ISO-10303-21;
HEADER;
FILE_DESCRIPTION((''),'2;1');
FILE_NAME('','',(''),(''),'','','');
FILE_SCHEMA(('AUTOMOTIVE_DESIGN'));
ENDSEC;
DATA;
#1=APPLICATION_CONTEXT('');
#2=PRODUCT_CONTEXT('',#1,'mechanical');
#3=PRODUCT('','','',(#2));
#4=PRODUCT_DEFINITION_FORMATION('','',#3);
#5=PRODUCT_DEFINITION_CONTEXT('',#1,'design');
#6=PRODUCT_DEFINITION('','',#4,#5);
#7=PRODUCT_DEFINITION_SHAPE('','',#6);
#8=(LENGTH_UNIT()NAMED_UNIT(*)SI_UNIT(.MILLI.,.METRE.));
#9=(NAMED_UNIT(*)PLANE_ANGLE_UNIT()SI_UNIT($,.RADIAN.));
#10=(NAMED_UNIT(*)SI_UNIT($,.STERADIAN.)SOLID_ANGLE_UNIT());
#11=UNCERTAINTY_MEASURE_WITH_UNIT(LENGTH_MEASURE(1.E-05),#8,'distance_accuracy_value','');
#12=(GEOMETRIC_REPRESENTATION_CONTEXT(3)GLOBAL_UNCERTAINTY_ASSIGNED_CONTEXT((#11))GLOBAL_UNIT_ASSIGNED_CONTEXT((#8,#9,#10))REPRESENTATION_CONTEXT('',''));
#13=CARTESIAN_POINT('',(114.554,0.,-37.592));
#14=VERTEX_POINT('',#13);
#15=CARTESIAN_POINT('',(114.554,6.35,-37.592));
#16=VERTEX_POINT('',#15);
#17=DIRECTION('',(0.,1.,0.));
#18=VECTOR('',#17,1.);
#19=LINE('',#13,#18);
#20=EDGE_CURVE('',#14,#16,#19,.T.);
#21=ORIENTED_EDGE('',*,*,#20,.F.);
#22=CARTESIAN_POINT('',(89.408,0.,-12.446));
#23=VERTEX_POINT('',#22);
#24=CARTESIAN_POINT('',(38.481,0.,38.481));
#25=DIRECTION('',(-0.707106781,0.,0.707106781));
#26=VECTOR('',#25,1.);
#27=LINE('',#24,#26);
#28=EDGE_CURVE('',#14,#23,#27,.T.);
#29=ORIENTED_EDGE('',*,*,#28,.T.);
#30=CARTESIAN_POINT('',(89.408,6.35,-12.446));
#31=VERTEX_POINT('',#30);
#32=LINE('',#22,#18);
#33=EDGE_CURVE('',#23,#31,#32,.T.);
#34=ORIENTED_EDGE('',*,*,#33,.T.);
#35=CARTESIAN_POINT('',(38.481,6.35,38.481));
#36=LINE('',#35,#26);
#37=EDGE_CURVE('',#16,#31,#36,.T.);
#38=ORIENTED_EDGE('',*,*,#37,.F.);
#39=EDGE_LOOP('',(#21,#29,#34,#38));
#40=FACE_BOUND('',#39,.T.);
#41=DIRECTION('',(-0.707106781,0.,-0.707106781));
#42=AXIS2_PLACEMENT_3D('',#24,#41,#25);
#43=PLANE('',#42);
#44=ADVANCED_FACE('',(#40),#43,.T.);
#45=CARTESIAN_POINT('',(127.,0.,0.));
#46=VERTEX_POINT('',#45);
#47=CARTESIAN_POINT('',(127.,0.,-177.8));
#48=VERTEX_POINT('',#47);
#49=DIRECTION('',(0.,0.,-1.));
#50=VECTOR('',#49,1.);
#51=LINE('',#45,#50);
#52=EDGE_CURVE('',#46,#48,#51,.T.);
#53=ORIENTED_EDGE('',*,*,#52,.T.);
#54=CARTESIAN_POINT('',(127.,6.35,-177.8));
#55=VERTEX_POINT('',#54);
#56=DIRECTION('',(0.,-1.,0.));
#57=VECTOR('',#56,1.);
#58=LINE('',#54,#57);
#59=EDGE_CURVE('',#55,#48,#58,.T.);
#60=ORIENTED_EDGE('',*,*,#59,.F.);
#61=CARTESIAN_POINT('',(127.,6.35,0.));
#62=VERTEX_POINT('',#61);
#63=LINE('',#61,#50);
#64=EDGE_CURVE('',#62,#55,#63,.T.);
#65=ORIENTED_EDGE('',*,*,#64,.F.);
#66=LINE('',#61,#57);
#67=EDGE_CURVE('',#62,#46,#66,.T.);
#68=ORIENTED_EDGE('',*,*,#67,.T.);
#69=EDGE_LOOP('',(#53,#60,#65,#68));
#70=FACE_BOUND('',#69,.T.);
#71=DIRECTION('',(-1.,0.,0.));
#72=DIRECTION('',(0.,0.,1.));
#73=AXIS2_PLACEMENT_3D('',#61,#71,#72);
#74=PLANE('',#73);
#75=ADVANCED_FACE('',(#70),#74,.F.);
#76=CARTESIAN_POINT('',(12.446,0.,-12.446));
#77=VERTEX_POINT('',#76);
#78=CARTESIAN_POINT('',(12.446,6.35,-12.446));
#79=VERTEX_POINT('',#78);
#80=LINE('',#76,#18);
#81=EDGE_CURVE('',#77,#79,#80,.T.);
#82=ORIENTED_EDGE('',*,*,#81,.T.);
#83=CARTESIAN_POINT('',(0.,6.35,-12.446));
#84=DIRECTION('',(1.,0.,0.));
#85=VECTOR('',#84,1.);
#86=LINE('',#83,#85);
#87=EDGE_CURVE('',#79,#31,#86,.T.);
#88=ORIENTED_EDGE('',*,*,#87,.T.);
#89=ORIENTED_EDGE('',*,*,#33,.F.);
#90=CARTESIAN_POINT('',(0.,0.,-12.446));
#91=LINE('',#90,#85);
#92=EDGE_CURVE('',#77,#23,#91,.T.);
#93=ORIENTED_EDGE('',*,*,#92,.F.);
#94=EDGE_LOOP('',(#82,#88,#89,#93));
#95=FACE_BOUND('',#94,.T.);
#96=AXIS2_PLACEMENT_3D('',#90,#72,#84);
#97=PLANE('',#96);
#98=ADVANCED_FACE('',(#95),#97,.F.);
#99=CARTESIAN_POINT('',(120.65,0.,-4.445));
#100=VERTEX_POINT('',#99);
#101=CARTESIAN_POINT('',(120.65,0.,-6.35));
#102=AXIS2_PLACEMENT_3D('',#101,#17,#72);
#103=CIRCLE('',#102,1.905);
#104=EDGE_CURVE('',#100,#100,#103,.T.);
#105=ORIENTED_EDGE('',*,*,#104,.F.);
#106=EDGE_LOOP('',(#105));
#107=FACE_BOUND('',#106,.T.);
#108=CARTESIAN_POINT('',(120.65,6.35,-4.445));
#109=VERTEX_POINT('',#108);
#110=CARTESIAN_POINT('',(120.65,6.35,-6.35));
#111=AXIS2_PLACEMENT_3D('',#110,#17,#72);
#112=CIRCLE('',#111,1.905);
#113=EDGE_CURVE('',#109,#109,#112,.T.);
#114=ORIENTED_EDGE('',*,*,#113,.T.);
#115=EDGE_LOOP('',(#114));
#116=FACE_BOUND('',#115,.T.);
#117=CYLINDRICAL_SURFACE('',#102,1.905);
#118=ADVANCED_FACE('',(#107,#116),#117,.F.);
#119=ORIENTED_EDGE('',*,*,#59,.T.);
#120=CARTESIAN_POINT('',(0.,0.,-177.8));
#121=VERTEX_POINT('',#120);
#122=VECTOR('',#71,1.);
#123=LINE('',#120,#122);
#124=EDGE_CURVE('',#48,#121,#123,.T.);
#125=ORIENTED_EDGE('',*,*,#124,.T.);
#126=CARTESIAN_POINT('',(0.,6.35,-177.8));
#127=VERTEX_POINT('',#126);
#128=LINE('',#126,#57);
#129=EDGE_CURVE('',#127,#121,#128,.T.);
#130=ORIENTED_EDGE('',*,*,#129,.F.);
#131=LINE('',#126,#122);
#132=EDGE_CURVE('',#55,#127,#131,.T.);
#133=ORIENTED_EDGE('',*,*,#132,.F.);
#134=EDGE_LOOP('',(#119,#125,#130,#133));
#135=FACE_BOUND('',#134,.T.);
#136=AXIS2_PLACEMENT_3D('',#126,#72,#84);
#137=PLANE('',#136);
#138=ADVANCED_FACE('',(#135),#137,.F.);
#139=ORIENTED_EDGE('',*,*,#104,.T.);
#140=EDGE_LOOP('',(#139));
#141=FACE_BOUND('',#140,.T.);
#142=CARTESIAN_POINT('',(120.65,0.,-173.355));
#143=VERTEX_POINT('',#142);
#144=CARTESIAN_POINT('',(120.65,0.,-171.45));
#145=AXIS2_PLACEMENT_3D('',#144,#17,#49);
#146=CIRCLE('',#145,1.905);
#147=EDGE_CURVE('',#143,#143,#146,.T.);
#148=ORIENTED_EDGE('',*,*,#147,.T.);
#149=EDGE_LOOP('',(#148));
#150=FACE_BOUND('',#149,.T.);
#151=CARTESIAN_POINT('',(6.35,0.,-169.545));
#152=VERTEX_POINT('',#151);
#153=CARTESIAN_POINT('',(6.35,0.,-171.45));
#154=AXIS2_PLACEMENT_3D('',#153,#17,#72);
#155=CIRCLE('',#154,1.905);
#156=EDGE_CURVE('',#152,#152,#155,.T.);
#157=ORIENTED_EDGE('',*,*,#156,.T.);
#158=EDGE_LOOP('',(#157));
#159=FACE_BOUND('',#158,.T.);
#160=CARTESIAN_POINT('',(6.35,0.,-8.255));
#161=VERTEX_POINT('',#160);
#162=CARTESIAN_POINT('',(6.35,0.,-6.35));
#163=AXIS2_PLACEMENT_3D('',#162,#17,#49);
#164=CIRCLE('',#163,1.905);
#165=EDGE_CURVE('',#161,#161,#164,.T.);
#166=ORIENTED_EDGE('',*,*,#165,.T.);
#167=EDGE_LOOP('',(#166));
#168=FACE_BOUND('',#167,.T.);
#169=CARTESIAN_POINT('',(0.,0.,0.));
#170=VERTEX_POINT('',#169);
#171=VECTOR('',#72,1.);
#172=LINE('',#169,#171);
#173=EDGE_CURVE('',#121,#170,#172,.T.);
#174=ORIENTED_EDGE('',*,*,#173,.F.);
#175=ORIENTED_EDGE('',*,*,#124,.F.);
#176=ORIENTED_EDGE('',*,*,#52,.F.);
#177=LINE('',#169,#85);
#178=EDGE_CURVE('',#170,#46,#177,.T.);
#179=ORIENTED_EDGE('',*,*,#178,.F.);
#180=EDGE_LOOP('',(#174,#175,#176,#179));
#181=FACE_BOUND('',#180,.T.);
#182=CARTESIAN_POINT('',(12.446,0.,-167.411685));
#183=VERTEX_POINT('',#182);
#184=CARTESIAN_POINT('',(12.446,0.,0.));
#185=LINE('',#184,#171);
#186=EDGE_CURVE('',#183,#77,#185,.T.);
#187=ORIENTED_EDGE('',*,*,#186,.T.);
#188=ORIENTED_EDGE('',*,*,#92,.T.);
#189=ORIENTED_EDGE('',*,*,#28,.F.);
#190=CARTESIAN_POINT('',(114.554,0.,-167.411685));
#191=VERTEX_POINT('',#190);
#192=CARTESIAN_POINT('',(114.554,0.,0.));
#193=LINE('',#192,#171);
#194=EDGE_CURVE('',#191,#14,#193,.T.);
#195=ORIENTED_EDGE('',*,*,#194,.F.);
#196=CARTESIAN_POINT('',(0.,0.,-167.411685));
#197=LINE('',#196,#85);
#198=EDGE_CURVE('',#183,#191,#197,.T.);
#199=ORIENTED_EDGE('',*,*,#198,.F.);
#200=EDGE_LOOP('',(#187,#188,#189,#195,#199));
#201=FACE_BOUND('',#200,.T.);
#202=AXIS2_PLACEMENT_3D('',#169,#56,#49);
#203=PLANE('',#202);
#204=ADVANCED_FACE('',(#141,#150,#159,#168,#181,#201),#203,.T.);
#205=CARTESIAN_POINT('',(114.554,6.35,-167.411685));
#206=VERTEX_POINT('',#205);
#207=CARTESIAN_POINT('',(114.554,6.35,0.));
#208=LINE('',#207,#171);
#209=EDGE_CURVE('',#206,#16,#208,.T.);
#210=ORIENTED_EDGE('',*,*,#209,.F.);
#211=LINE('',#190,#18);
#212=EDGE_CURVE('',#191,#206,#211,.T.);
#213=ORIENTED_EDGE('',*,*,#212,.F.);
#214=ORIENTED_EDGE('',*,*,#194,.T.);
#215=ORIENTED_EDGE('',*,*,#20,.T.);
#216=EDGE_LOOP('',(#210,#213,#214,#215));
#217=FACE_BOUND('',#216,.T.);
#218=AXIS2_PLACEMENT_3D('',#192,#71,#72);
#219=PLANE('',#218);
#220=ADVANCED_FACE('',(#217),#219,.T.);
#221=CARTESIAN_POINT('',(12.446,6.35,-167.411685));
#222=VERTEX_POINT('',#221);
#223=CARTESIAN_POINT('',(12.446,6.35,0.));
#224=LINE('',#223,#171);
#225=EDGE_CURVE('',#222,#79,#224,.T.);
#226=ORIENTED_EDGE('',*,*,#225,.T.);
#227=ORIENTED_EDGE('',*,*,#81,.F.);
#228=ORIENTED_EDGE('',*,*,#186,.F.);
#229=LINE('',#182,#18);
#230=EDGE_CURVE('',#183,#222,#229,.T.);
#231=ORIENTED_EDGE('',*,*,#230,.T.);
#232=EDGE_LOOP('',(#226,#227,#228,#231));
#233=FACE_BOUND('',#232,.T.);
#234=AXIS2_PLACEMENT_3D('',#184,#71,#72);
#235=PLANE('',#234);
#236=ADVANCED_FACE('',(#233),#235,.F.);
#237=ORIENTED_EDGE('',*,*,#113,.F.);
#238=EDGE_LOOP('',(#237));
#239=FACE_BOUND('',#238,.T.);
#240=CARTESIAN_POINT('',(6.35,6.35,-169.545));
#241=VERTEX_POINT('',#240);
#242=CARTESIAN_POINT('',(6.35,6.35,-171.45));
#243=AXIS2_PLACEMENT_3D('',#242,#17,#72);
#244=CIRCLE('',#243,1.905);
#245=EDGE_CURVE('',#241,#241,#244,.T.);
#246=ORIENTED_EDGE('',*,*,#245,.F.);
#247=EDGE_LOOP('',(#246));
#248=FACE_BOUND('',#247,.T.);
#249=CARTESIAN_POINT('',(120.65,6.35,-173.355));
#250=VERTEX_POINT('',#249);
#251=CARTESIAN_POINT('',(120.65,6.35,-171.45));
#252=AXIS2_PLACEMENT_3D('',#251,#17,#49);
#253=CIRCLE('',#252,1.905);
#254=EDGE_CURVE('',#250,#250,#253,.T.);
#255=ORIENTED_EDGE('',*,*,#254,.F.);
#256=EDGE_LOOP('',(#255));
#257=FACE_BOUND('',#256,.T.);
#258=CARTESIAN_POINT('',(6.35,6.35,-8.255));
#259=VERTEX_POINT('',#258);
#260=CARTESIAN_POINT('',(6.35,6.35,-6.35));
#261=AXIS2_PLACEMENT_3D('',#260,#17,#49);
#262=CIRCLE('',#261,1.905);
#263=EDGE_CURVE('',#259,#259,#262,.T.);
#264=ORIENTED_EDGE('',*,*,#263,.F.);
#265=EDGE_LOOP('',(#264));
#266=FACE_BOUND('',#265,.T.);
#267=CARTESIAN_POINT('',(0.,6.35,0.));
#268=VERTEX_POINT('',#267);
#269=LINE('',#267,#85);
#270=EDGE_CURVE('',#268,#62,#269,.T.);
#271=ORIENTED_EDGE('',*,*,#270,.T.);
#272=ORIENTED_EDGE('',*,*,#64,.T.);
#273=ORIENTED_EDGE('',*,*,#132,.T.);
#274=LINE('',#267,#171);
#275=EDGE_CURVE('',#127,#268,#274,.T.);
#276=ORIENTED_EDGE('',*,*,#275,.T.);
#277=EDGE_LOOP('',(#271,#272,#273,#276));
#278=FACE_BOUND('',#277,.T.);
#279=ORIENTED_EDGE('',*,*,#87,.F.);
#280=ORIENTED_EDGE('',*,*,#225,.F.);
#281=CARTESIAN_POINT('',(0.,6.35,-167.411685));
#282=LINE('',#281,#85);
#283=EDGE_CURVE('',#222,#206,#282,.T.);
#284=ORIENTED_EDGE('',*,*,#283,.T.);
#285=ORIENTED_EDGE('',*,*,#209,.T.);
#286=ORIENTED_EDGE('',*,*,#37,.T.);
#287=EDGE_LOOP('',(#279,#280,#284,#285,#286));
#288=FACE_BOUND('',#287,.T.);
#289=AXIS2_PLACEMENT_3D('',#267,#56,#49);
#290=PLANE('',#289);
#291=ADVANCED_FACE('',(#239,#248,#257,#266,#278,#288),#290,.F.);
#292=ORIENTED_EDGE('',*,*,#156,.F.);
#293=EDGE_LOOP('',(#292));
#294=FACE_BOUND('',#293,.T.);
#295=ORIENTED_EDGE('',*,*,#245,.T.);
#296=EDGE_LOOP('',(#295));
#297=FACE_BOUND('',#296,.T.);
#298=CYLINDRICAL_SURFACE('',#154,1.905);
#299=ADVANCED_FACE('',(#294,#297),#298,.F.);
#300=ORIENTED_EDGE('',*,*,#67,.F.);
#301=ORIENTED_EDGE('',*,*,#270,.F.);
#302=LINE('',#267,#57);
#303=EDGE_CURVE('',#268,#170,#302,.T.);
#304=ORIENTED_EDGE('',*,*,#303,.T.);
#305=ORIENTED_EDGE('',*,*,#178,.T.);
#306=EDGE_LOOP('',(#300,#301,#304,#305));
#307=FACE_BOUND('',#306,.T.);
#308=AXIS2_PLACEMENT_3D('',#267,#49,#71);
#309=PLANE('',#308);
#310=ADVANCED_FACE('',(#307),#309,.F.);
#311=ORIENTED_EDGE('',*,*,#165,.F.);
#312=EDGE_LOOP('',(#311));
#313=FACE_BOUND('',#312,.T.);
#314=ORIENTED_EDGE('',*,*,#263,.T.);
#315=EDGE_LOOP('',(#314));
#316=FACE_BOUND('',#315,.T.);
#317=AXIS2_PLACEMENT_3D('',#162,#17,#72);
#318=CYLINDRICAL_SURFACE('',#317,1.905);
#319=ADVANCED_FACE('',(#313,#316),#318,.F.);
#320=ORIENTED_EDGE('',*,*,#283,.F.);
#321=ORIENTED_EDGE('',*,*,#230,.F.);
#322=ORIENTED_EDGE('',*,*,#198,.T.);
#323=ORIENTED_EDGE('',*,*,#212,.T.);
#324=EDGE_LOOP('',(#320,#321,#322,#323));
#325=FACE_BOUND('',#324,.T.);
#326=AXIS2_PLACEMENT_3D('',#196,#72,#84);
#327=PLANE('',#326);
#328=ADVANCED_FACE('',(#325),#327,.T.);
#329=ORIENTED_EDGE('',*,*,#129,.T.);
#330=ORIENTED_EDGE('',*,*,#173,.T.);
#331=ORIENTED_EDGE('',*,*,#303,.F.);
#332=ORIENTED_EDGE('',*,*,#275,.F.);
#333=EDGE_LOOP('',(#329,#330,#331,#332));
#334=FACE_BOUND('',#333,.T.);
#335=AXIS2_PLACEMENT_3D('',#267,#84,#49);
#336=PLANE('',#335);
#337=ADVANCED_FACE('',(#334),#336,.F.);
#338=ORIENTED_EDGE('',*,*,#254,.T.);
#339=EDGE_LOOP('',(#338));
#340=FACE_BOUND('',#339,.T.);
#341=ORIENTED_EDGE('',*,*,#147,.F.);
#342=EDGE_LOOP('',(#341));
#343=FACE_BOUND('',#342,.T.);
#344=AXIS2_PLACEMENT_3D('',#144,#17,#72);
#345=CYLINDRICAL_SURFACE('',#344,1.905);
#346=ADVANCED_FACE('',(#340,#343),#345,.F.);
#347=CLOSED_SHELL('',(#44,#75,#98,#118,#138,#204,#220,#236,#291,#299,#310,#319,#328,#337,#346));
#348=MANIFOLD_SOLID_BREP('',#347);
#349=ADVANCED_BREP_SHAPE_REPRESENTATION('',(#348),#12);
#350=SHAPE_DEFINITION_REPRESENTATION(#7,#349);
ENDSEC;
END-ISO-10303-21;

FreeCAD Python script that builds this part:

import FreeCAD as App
import Part
import Sketcher
Q = App.Units.Quantity

doc = App.newDocument("Part")
params = doc.addObject("Spreadsheet::Sheet", "Params")
for row, (alias, value) in enumerate([
    ("sketch1_width", "5 in"),
    ("sketch1_height", "7 in"),
    ("pad1_length", "0.25 in"),
    ("sketch2_width", "4.02 in"),
    ("sketch2_width2", "3.03 in"),
    ("sketch3_diameter", "0.15 in"),
], start=1):
    params.set(f"A{row}", alias)
    params.set(f"B{row}", "=" + value)
    params.setAlias(f"B{row}", alias)

body = doc.addObject("PartDesign::Body", "Body")

sketch1 = body.newObject("Sketcher::SketchObject", "Sketch")
sketch1.AttachmentSupport = (doc.getObject("XZ_Plane"), [""])
sketch1.MapMode = "FlatFace"
sketch1.addGeometry([
    Part.LineSegment(App.Vector(0, -178, 0), App.Vector(0, 0, 0)),
    Part.LineSegment(App.Vector(0, 0, 0), App.Vector(127, 0, 0)),
    Part.LineSegment(App.Vector(127, 0, 0), App.Vector(127, -178, 0)),
    Part.LineSegment(App.Vector(127, -178, 0), App.Vector(0, -178, 0)),
], False)
sketch1.addConstraint([
    Sketcher.Constraint("Coincident", 0, 2, 1, 1),
    Sketcher.Constraint("Coincident", 1, 2, 2, 1),
    Sketcher.Constraint("Coincident", 2, 2, 3, 1),
    Sketcher.Constraint("Coincident", 3, 2, 0, 1),
    Sketcher.Constraint("Vertical", 0),
    Sketcher.Constraint("Horizontal", 1),
    Sketcher.Constraint("Vertical", 2),
    Sketcher.Constraint("Horizontal", 3),
    Sketcher.Constraint("Coincident", 0, 2, -1, 1),
    Sketcher.Constraint("DistanceX", 1, 1, 1, 2, Q("5 in")),
    Sketcher.Constraint("DistanceY", 0, 1, 0, 2, Q("7 in")),
])
sketch1.setExpression("Constraints[9]", "Params.sketch1_width")
sketch1.setExpression("Constraints[10]", "Params.sketch1_height")
pad1 = body.newObject("PartDesign::Pad", "Pad")
pad1.Profile = sketch1
pad1.setExpression("Length", "Params.pad1_length")
pad1.Reversed = True

sketch2 = body.newObject("Sketcher::SketchObject", "Sketch001")
sketch2.AttachmentSupport = (doc.getObject("XZ_Plane"), [""])
sketch2.MapMode = "FlatFace"
sketch2.AttachmentOffset = App.Placement(App.Vector(0, 0, -0.25 * 25.4), App.Rotation())
sketch2.addGeometry([
    Part.LineSegment(App.Vector(115, -167, 0), App.Vector(12, -167, 0)),
    Part.LineSegment(App.Vector(12, -167, 0), App.Vector(12, -12, 0)),
    Part.LineSegment(App.Vector(12, -12, 0), App.Vector(89, -12, 0)),
    Part.LineSegment(App.Vector(89, -12, 0), App.Vector(115, -38, 0)),
    Part.LineSegment(App.Vector(115, -38, 0), App.Vector(115, -167, 0)),
], False)
sketch2.addConstraint([
    Sketcher.Constraint("Coincident", 0, 2, 1, 1),
    Sketcher.Constraint("Coincident", 1, 2, 2, 1),
    Sketcher.Constraint("Coincident", 2, 2, 3, 1),
    Sketcher.Constraint("Coincident", 3, 2, 4, 1),
    Sketcher.Constraint("Coincident", 4, 2, 0, 1),
    Sketcher.Constraint("Horizontal", 0),
    Sketcher.Constraint("Vertical", 1),
    Sketcher.Constraint("Horizontal", 2),
    Sketcher.Constraint("Vertical", 4),
    Sketcher.Constraint("Angle", 3, Q("-45 deg")),
    Sketcher.Constraint("DistanceX", 0, 2, 0, 1, Q("4.02 in")),
    Sketcher.Constraint("DistanceX", 2, 1, 2, 2, Q("3.03 in")),
    Sketcher.Constraint("DistanceX", -1, 1, 0, 2, Q("0.49 in")),
    Sketcher.Constraint("DistanceY", 1, 2, -1, 1, Q("0.49 in")),
    Sketcher.Constraint("DistanceY", 1, 1, 1, 2, 154.965685),
])
sketch2.setExpression("Constraints[10]", "Params.sketch2_width")
sketch2.setExpression("Constraints[11]", "Params.sketch2_width2")
pocket1 = body.newObject("PartDesign::Pocket", "Pocket")
pocket1.Profile = sketch2
pocket1.Type = "ThroughAll"
pocket1.Reversed = True

sketch3 = body.newObject("Sketcher::SketchObject", "Sketch002")
sketch3.AttachmentSupport = (doc.getObject("XZ_Plane"), [""])
sketch3.MapMode = "FlatFace"
sketch3.AttachmentOffset = App.Placement(App.Vector(0, 0, -0.25 * 25.4), App.Rotation())
sketch3.addGeometry([
    Part.Circle(App.Vector(6.3, -171.4, 0), App.Vector(0, 0, 1), 1.9),
    Part.Circle(App.Vector(6.3, -6.3, 0), App.Vector(0, 0, 1), 1.9),
    Part.Circle(App.Vector(120.7, -6.3, 0), App.Vector(0, 0, 1), 1.9),
    Part.Circle(App.Vector(120.7, -171.4, 0), App.Vector(0, 0, 1), 1.9),
], False)
sketch3.addConstraint([
    Sketcher.Constraint("Equal", 0, 1),
    Sketcher.Constraint("Equal", 1, 2),
    Sketcher.Constraint("Equal", 2, 3),
    Sketcher.Constraint("Horizontal", 1, 3, 2, 3),
    Sketcher.Constraint("Horizontal", 0, 3, 3, 3),
    Sketcher.Constraint("Vertical", 0, 3, 1, 3),
    Sketcher.Constraint("Vertical", 2, 3, 3, 3),
    Sketcher.Constraint("Diameter", 0, Q("0.15 in")),
    Sketcher.Constraint("DistanceY", 0, 3, 1, 3, Q("6.5 in")),
    Sketcher.Constraint("DistanceX", 1, 3, 2, 3, Q("4.5 in")),
    Sketcher.Constraint("DistanceX", -1, 1, 0, 3, Q("0.25 in")),
    Sketcher.Constraint("DistanceY", 0, 3, -1, 1, Q("6.75 in")),
])
sketch3.setExpression("Constraints[7]", "Params.sketch3_diameter")
pocket2 = body.newObject("PartDesign::Pocket", "Pocket001")
pocket2.Profile = sketch3
pocket2.Type = "ThroughAll"
pocket2.Reversed = True

doc.recompute()
